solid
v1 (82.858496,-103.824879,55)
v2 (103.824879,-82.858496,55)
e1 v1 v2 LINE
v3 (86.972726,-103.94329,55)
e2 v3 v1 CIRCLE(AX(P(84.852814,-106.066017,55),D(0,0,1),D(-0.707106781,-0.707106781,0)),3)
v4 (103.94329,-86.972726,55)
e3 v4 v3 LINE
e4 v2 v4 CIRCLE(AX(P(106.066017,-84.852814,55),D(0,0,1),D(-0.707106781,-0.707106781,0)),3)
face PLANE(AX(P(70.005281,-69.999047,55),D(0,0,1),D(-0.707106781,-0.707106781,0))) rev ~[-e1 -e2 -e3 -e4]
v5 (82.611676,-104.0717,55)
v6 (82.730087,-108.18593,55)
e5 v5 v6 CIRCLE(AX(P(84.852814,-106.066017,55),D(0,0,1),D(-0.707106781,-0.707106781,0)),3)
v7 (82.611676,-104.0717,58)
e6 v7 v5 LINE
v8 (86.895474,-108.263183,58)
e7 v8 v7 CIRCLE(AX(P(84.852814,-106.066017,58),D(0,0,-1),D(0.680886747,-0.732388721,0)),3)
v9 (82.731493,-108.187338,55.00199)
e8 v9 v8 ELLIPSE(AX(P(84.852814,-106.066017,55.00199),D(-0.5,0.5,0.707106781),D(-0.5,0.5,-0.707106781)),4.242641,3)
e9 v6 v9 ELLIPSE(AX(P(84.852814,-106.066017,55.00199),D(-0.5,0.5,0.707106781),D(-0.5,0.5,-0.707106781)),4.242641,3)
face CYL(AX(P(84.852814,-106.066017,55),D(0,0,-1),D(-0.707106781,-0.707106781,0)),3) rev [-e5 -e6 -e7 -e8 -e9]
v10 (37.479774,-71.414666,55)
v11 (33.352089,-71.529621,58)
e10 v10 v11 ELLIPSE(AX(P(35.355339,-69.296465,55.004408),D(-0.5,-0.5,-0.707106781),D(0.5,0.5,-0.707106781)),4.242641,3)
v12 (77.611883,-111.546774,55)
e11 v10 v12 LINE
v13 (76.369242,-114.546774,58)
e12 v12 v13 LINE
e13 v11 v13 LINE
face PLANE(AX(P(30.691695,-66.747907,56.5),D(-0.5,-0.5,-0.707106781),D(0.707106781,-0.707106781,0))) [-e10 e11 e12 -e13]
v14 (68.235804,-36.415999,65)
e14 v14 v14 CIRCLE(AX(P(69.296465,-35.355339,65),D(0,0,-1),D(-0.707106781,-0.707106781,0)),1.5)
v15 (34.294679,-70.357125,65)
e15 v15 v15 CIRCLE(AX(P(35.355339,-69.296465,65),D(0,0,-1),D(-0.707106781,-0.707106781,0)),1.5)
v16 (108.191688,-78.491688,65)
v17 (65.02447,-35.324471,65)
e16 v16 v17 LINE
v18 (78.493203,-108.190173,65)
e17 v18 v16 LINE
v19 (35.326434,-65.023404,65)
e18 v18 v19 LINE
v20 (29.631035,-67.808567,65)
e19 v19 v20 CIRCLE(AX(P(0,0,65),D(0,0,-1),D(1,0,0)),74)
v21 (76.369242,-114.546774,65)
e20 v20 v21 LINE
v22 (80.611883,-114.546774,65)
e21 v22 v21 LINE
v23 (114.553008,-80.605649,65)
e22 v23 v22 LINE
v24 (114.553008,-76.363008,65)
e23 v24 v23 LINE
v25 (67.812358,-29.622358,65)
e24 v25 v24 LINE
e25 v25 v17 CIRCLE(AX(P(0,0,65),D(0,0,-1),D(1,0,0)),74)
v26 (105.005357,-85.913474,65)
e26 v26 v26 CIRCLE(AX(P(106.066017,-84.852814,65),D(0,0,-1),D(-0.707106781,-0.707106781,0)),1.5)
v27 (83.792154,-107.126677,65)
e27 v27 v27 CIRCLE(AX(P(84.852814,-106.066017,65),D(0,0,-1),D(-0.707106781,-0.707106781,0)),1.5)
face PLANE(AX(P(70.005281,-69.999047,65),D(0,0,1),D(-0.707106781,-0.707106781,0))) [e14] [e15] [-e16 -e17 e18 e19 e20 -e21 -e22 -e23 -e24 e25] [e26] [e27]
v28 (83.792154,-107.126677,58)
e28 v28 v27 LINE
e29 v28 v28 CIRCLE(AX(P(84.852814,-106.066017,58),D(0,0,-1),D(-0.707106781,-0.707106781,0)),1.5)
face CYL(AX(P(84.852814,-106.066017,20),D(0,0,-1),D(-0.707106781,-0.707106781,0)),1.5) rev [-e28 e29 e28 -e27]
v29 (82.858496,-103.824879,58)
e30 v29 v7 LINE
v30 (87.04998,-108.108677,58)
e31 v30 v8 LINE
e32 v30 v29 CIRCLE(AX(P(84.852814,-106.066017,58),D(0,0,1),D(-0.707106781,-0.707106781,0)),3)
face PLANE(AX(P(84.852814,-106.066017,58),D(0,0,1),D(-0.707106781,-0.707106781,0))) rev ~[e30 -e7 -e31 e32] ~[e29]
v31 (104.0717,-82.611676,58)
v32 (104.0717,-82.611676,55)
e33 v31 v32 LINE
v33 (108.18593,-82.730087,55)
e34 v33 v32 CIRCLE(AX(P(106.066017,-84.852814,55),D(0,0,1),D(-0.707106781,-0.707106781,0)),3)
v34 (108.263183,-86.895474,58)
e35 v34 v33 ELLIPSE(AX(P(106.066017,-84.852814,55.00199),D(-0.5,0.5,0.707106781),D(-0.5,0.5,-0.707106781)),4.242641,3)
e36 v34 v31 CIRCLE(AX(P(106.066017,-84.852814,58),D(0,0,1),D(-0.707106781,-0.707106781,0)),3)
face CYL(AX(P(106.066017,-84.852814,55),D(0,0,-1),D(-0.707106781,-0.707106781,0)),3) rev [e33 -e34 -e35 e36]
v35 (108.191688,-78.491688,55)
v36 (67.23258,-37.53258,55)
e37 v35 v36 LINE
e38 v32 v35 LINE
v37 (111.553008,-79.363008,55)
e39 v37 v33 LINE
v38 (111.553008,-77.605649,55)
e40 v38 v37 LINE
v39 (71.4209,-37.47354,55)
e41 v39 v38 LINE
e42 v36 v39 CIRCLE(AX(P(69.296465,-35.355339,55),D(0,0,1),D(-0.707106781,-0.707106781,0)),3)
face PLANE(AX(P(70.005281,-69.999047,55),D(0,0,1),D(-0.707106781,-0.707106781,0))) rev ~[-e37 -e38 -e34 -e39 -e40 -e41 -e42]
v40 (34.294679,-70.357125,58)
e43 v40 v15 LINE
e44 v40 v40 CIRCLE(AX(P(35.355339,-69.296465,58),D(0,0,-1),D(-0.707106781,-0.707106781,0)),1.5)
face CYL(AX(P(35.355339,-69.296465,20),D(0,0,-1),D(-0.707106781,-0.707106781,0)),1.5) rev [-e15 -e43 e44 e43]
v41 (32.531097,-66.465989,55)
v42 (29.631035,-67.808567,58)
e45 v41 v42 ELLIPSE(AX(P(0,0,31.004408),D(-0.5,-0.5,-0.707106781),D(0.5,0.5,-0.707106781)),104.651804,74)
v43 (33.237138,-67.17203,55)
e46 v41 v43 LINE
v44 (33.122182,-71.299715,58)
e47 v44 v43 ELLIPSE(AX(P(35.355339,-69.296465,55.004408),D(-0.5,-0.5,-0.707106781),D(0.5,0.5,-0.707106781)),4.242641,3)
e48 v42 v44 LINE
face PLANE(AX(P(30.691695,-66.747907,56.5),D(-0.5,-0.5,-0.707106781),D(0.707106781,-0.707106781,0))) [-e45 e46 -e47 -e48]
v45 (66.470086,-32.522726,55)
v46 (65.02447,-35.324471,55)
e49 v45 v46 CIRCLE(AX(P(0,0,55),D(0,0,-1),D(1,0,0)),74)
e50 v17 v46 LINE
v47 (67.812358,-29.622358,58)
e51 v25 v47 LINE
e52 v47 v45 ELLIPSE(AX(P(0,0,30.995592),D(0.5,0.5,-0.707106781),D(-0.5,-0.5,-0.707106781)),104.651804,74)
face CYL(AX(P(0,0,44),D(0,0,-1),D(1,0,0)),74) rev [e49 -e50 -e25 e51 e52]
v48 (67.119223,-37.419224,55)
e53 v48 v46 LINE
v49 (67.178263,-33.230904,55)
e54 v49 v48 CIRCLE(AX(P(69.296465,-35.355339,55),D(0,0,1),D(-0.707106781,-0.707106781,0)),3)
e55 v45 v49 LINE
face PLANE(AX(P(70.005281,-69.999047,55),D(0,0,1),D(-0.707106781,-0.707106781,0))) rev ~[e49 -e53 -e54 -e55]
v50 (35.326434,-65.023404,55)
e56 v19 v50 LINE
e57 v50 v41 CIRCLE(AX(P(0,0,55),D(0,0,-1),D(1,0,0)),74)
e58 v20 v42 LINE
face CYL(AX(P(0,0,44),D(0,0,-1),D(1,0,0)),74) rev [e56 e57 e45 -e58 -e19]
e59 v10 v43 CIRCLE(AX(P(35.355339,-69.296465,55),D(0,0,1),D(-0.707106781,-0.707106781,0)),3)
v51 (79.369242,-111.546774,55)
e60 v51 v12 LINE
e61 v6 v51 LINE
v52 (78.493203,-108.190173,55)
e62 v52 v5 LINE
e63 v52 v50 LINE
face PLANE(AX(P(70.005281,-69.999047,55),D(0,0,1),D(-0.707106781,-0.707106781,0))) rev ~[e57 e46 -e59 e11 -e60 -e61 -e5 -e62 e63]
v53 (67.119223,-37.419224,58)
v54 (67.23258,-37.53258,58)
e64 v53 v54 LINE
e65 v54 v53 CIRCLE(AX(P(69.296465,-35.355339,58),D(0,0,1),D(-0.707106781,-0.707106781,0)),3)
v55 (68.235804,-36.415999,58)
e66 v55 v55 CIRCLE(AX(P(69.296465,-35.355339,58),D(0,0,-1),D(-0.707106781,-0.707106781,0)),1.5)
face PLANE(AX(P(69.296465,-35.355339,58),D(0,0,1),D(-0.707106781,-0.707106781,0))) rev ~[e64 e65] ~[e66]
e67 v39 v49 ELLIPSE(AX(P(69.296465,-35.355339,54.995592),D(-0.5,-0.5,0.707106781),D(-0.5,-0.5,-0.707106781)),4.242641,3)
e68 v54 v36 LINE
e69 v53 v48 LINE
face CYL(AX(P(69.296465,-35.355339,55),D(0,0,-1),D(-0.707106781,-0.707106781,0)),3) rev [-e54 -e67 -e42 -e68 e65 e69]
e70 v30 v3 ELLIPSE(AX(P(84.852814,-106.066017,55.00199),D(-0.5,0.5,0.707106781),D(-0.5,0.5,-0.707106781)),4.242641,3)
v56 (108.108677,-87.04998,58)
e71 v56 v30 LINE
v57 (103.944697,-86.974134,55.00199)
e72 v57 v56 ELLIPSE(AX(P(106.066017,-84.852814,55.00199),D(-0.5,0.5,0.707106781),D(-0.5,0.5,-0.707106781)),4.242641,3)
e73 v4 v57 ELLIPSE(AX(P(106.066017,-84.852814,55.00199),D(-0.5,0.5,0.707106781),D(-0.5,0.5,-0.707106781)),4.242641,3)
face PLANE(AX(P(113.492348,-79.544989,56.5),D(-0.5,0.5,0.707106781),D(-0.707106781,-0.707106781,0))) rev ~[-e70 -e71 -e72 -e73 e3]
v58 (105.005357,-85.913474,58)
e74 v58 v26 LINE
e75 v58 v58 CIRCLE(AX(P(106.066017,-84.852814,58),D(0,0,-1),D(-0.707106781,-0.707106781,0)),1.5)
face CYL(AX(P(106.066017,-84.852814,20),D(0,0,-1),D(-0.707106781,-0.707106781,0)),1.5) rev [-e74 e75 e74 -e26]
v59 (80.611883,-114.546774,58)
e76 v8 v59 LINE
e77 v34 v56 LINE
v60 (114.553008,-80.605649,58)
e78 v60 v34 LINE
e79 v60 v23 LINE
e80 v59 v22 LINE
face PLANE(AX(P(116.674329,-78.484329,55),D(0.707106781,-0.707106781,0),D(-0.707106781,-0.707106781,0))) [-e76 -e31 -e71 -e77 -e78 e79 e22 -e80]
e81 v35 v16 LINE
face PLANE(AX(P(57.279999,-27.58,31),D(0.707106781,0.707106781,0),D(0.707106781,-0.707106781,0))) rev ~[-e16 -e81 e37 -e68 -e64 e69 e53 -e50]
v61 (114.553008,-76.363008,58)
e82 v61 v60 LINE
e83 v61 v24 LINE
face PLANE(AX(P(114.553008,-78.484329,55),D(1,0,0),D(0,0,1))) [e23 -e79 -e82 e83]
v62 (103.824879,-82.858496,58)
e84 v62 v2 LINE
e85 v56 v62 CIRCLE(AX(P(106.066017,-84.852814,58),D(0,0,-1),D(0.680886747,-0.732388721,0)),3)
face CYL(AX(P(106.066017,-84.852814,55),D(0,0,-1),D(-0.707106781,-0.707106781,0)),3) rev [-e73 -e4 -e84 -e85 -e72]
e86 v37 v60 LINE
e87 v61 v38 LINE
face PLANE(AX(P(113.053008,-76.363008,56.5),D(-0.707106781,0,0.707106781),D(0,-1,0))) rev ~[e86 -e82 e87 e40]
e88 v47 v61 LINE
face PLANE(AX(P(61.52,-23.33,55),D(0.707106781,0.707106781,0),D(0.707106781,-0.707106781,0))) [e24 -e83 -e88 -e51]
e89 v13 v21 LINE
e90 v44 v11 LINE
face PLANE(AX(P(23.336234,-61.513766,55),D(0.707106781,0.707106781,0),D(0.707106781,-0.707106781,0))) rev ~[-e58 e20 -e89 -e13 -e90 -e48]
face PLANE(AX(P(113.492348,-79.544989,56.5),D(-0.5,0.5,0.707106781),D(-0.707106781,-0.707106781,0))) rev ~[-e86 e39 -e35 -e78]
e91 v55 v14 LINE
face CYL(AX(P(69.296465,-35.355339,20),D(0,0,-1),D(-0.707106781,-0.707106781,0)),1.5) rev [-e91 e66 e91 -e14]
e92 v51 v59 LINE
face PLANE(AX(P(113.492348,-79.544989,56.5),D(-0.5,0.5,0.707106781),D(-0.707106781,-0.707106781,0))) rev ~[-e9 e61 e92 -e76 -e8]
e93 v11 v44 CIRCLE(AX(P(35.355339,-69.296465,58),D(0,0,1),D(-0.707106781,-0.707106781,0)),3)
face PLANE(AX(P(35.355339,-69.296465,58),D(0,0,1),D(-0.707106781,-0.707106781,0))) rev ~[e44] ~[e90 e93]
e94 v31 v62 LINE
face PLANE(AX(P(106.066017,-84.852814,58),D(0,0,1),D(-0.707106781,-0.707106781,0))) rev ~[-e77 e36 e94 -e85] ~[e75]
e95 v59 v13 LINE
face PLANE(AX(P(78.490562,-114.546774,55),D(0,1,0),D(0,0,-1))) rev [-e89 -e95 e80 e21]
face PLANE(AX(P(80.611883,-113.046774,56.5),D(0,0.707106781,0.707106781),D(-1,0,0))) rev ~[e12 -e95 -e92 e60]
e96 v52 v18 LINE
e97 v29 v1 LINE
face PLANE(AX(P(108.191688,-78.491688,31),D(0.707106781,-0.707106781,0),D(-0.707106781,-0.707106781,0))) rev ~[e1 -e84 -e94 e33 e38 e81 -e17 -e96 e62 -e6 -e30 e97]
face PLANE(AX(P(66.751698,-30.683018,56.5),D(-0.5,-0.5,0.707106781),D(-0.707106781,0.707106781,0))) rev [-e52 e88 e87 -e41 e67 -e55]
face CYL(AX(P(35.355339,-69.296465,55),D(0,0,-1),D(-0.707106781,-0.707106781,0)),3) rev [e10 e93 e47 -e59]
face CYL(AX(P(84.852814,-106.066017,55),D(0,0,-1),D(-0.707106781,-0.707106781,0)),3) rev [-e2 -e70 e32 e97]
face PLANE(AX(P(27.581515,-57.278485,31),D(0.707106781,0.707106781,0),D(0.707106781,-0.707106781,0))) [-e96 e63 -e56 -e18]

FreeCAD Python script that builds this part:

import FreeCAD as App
import Part
import Sketcher

V = App.Vector
Q = App.Units.Quantity


def edges_at(feature, points):
    """Names of the edges that pass closest to the given points."""
    edges = feature.Shape.Edges
    near = lambda p: min(range(len(edges)), key=lambda i: edges[i].distToShape(Part.Vertex(*p))[0])
    return sorted({f"Edge{near(p) + 1}" for p in points})


def add_polygon(sketch, points):
    """Adds a closed chain of lines whose ends are joined by coincident constraints."""
    first, n = sketch.GeometryCount, len(points)
    for a, b in zip(points, points[1:] + points[:1]):
        sketch.addGeometry(Part.LineSegment(App.Vector(*a, 0), App.Vector(*b, 0)), False)
    for i in range(n):
        sketch.addConstraint(Sketcher.Constraint("Coincident", first + i, 2, first + (i + 1) % n, 1))

doc = App.newDocument("Part")
body = doc.addObject("PartDesign::Body", "Body")

sketch1 = body.newObject("Sketcher::SketchObject", "Sketch")
sketch1.AttachmentSupport = (doc.getObject("XY_Plane"), [""])
sketch1.MapMode = "FlatFace"
sketch1.AttachmentOffset = App.Placement(V(0, 0, -80), App.Rotation())
sketch1.addGeometry(Part.Circle(V(-24, 74, 0), V(0, 0, 1), 1.5), False)
sketch1.addConstraint(Sketcher.Constraint("Diameter", 0, Q("3 mm")))
sketch1.addConstraint(Sketcher.Constraint("DistanceX", 0, 3, -1, 1, Q("24 mm")))
sketch1.addConstraint(Sketcher.Constraint("DistanceY", -1, 1, 0, 3, Q("74 mm")))
pad1 = body.newObject("PartDesign::Pad", "Pad")
pad1.Profile = sketch1
pad1.Length = 60
body2 = doc.addObject("PartDesign::Body", "Body001")

sketch2 = body2.newObject("Sketcher::SketchObject", "Sketch001")
sketch2.AttachmentSupport = (doc.getObject("XY_Plane001"), [""])
sketch2.MapMode = "FlatFace"
sketch2.AttachmentOffset = App.Placement(V(0, 0, -80), App.Rotation())
sketch2.addGeometry(Part.Circle(V(-15, 135, 0), V(0, 0, 1), 1.5), False)
sketch2.addConstraint(Sketcher.Constraint("Diameter", 0, Q("3 mm")))
sketch2.addConstraint(Sketcher.Constraint("DistanceX", 0, 3, -1, 1, Q("15 mm")))
sketch2.addConstraint(Sketcher.Constraint("DistanceY", -1, 1, 0, 3, Q("135 mm")))
pad2 = body2.newObject("PartDesign::Pad", "Pad001")
pad2.Profile = sketch2
pad2.Length = 60
body3 = doc.addObject("PartDesign::Body", "Body002")

sketch3 = body3.newObject("Sketcher::SketchObject", "Sketch002")
sketch3.AttachmentSupport = (doc.getObject("XY_Plane002"), [""])
sketch3.MapMode = "FlatFace"
sketch3.AttachmentOffset = App.Placement(V(0, 0, -80), App.Rotation())
sketch3.addGeometry(Part.Circle(V(15, 135, 0), V(0, 0, 1), 1.5), False)
sketch3.addConstraint(Sketcher.Constraint("Diameter", 0, Q("3 mm")))
sketch3.addConstraint(Sketcher.Constraint("DistanceX", -1, 1, 0, 3, Q("15 mm")))
sketch3.addConstraint(Sketcher.Constraint("DistanceY", -1, 1, 0, 3, Q("135 mm")))
pad3 = body3.newObject("PartDesign::Pad", "Pad002")
pad3.Profile = sketch3
pad3.Length = 60
body4 = doc.addObject("PartDesign::Body", "Body003")
body4.AllowCompound = True

sketch4 = body4.newObject("Sketcher::SketchObject", "Sketch003")
sketch4.AttachmentSupport = (doc.getObject("XY_Plane003"), [""])
sketch4.MapMode = "FlatFace"
sketch4.AttachmentOffset = App.Placement(V(0, 0, -80), App.Rotation())
sketch4.addGeometry(Part.Circle(V(24, 74, 0), V(0, 0, 1), 1.5), False)
sketch4.addConstraint(Sketcher.Constraint("Diameter", 0, Q("3 mm")))
sketch4.addConstraint(Sketcher.Constraint("DistanceX", -1, 1, 0, 3, Q("24 mm")))
sketch4.addConstraint(Sketcher.Constraint("DistanceY", -1, 1, 0, 3, Q("74 mm")))
pad4 = body4.newObject("PartDesign::Pad", "Pad003")
pad4.Profile = sketch4
pad4.Length = 60
doc.recompute()

boolean = body4.newObject("PartDesign::Boolean", "Boolean")
boolean.Type = "Fuse"
boolean.addObjects([body])
doc.recompute()

boolean2 = body4.newObject("PartDesign::Boolean", "Boolean001")
boolean2.Type = "Fuse"
boolean2.addObjects([body2])
doc.recompute()

boolean3 = body4.newObject("PartDesign::Boolean", "Boolean002")
boolean3.Type = "Fuse"
boolean3.addObjects([body3])
body5 = doc.addObject("PartDesign::Body", "Body004")
body5.AllowCompound = True
doc.recompute()

body4.Placement = App.Placement(V(0, 0, 100), App.Rotation(V(0, 0, 1), 225))
boolean4 = body5.newObject("PartDesign::Boolean", "Boolean003")
boolean4.Type = "Fuse"
boolean4.addObjects([body4])
body6 = doc.addObject("PartDesign::Body", "Body005")

sketch5 = body6.newObject("Sketcher::SketchObject", "Sketch004")
sketch5.AttachmentSupport = (doc.getObject("XY_Plane005"), [""])
sketch5.MapMode = "FlatFace"
sketch5.AttachmentOffset = App.Placement(V(0, 0, -80), App.Rotation())
sketch5.addGeometry(Part.Circle(V(-24, 74, 0), V(0, 0, 1), 3), False)
sketch5.addConstraint(Sketcher.Constraint("Diameter", 0, Q("6 mm")))
sketch5.addConstraint(Sketcher.Constraint("DistanceX", 0, 3, -1, 1, Q("24 mm")))
sketch5.addConstraint(Sketcher.Constraint("DistanceY", -1, 1, 0, 3, Q("74 mm")))
pad5 = body6.newObject("PartDesign::Pad", "Pad004")
pad5.Profile = sketch5
pad5.Length = 3
body7 = doc.addObject("PartDesign::Body", "Body006")

sketch6 = body7.newObject("Sketcher::SketchObject", "Sketch005")
sketch6.AttachmentSupport = (doc.getObject("XY_Plane006"), [""])
sketch6.MapMode = "FlatFace"
sketch6.AttachmentOffset = App.Placement(V(0, 0, -80), App.Rotation())
sketch6.addGeometry(Part.Circle(V(-15, 135, 0), V(0, 0, 1), 3), False)
sketch6.addConstraint(Sketcher.Constraint("Diameter", 0, Q("6 mm")))
sketch6.addConstraint(Sketcher.Constraint("DistanceX", 0, 3, -1, 1, Q("15 mm")))
sketch6.addConstraint(Sketcher.Constraint("DistanceY", -1, 1, 0, 3, Q("135 mm")))
pad6 = body7.newObject("PartDesign::Pad", "Pad005")
pad6.Profile = sketch6
pad6.Length = 3
body8 = doc.addObject("PartDesign::Body", "Body007")

sketch7 = body8.newObject("Sketcher::SketchObject", "Sketch006")
sketch7.AttachmentSupport = (doc.getObject("XY_Plane007"), [""])
sketch7.MapMode = "FlatFace"
sketch7.AttachmentOffset = App.Placement(V(0, 0, -80), App.Rotation())
sketch7.addGeometry(Part.Circle(V(15, 135, 0), V(0, 0, 1), 3), False)
sketch7.addConstraint(Sketcher.Constraint("Diameter", 0, Q("6 mm")))
sketch7.addConstraint(Sketcher.Constraint("DistanceX", -1, 1, 0, 3, Q("15 mm")))
sketch7.addConstraint(Sketcher.Constraint("DistanceY", -1, 1, 0, 3, Q("135 mm")))
pad7 = body8.newObject("PartDesign::Pad", "Pad006")
pad7.Profile = sketch7
pad7.Length = 3
body9 = doc.addObject("PartDesign::Body", "Body008")
body9.AllowCompound = True

sketch8 = body9.newObject("Sketcher::SketchObject", "Sketch007")
sketch8.AttachmentSupport = (doc.getObject("XY_Plane008"), [""])
sketch8.MapMode = "FlatFace"
sketch8.AttachmentOffset = App.Placement(V(0, 0, -80), App.Rotation())
sketch8.addGeometry(Part.Circle(V(24, 74, 0), V(0, 0, 1), 3), False)
sketch8.addConstraint(Sketcher.Constraint("Diameter", 0, Q("6 mm")))
sketch8.addConstraint(Sketcher.Constraint("DistanceX", -1, 1, 0, 3, Q("24 mm")))
sketch8.addConstraint(Sketcher.Constraint("DistanceY", -1, 1, 0, 3, Q("74 mm")))
pad8 = body9.newObject("PartDesign::Pad", "Pad007")
pad8.Profile = sketch8
pad8.Length = 3
doc.recompute()

boolean5 = body9.newObject("PartDesign::Boolean", "Boolean004")
boolean5.Type = "Fuse"
boolean5.addObjects([body6])
doc.recompute()

boolean6 = body9.newObject("PartDesign::Boolean", "Boolean005")
boolean6.Type = "Fuse"
boolean6.addObjects([body7])
doc.recompute()

boolean7 = body9.newObject("PartDesign::Boolean", "Boolean006")
boolean7.Type = "Fuse"
boolean7.addObjects([body8])
body10 = doc.addObject("PartDesign::Body", "Body009")
body10.AllowCompound = True
doc.recompute()

body9.Placement = App.Placement(V(0, 0, 135), App.Rotation(V(0, 0, 1), 225))
boolean8 = body10.newObject("PartDesign::Boolean", "Boolean007")
boolean8.Type = "Fuse"
boolean8.addObjects([body9])
body11 = doc.addObject("PartDesign::Body", "Body010")

sketch9 = body11.newObject("Sketcher::SketchObject", "Sketch008")
sketch9.AttachmentSupport = (doc.getObject("XY_Plane010"), [""])
sketch9.MapMode = "FlatFace"
sketch9.AttachmentOffset = App.Placement(V(0, 0, 44), App.Rotation())
sketch9.addGeometry(Part.Circle(V(0, 0, 0), V(0, 0, 1), 74), False)
sketch9.addConstraint(Sketcher.Constraint("Coincident", 0, 3, -1, 1))
sketch9.addConstraint(Sketcher.Constraint("Diameter", 0, Q("148 mm")))
pad9 = body11.newObject("PartDesign::Pad", "Pad008")
pad9.Profile = sketch9
pad9.Length = 40
body12 = doc.addObject("PartDesign::Body", "Body011")

sketch10 = body12.newObject("Sketcher::SketchObject", "Sketch009")
sketch10.AttachmentSupport = (doc.getObject("XY_Plane011"), [""])
sketch10.MapMode = "FlatFace"
sketch10.AttachmentOffset = App.Placement(V(0, 0, 31), App.Rotation())
add_polygon(sketch10, [(-21, 132), (-21, 60), (21, 60), (21, 132)])
sketch10.addConstraint(Sketcher.Constraint("Vertical", 0))
sketch10.addConstraint(Sketcher.Constraint("Horizontal", 1))
sketch10.addConstraint(Sketcher.Constraint("Vertical", 2))
sketch10.addConstraint(Sketcher.Constraint("Horizontal", 3))
sketch10.addConstraint(Sketcher.Constraint("DistanceX", 1, 1, 1, 2, Q("42 mm")))
sketch10.addConstraint(Sketcher.Constraint("DistanceY", 0, 2, 0, 1, Q("72 mm")))
sketch10.addConstraint(Sketcher.Constraint("DistanceX", 0, 2, -1, 1, Q("21.001071 mm")))
sketch10.addConstraint(Sketcher.Constraint("DistanceY", -1, 1, 0, 2, Q("60.005081 mm")))
pad10 = body12.newObject("PartDesign::Pad", "Pad009")
pad10.Profile = sketch10
pad10.Length = 50
body13 = doc.addObject("PartDesign::Body", "Body012")
doc.recompute()

body12.Placement = App.Placement(V(0, 0, 0), App.Rotation(V(0, 0, 1), 225))
boolean9 = body13.newObject("PartDesign::Boolean", "Boolean008")
boolean9.Type = "Fuse"
boolean9.addObjects([body12])
body14 = doc.addObject("PartDesign::Body", "Body013")

sketch11 = body14.newObject("Sketcher::SketchObject", "Sketch010")
sketch11.AttachmentSupport = (doc.getObject("XY_Plane013"), [""])
sketch11.MapMode = "FlatFace"
sketch11.AttachmentOffset = App.Placement(V(0, 0, 75), App.Rotation())
add_polygon(sketch11, [(-27, 138), (-27, 60), (27, 60), (27, 138)])
sketch11.addConstraint(Sketcher.Constraint("Vertical", 0))
sketch11.addConstraint(Sketcher.Constraint("Horizontal", 1))
sketch11.addConstraint(Sketcher.Constraint("Vertical", 2))
sketch11.addConstraint(Sketcher.Constraint("Horizontal", 3))
sketch11.addConstraint(Sketcher.Constraint("DistanceX", 1, 1, 1, 2, Q("54 mm")))
sketch11.addConstraint(Sketcher.Constraint("DistanceY", 0, 2, 0, 1, Q("78 mm")))
sketch11.addConstraint(Sketcher.Constraint("DistanceX", 0, 2, -1, 1, Q("27.004408 mm")))
sketch11.addConstraint(Sketcher.Constraint("DistanceY", -1, 1, 0, 2, Q("59.99801 mm")))
pad11 = body14.newObject("PartDesign::Pad", "Pad010")
pad11.Profile = sketch11
pad11.Length = 10
body15 = doc.addObject("PartDesign::Body", "Body014")
doc.recompute()

body14.Placement = App.Placement(V(0, 0, -20), App.Rotation(V(0, 0, 1), 225))
boolean10 = body15.newObject("PartDesign::Boolean", "Boolean009")
boolean10.Type = "Fuse"
boolean10.addObjects([body14])
doc.recompute()

boolean11 = body15.newObject("PartDesign::Boolean", "Boolean010")
boolean11.Type = "Cut"
boolean11.addObjects([body13])
doc.recompute()

boolean12 = body15.newObject("PartDesign::Boolean", "Boolean011")
boolean12.Type = "Cut"
boolean12.addObjects([body11])
doc.recompute()

chamfer = body15.newObject("PartDesign::Chamfer", "Chamfer")
chamfer.Base = (boolean12, edges_at(boolean12, [(116.674, -78.484, 60), (78.491, -116.668, 60)]))
chamfer.Size = 3
doc.recompute()

chamfer2 = body15.newObject("PartDesign::Chamfer", "Chamfer001")
chamfer2.Base = (chamfer, edges_at(chamfer, [
    (91.183, -52.993, 55),
    (114.553, -78.484, 55),
    (53, -91.178, 55),
    (78.491, -114.547, 55),
    (97.582, -97.576, 55),
]))
chamfer2.Size = 3
doc.recompute()

boolean13 = body15.newObject("PartDesign::Boolean", "Boolean012")
boolean13.Type = "Cut"
boolean13.addObjects([body10])
doc.recompute()

boolean14 = body15.newObject("PartDesign::Boolean", "Boolean013")
boolean14.Type = "Cut"
boolean14.addObjects([body5])

doc.recompute()
